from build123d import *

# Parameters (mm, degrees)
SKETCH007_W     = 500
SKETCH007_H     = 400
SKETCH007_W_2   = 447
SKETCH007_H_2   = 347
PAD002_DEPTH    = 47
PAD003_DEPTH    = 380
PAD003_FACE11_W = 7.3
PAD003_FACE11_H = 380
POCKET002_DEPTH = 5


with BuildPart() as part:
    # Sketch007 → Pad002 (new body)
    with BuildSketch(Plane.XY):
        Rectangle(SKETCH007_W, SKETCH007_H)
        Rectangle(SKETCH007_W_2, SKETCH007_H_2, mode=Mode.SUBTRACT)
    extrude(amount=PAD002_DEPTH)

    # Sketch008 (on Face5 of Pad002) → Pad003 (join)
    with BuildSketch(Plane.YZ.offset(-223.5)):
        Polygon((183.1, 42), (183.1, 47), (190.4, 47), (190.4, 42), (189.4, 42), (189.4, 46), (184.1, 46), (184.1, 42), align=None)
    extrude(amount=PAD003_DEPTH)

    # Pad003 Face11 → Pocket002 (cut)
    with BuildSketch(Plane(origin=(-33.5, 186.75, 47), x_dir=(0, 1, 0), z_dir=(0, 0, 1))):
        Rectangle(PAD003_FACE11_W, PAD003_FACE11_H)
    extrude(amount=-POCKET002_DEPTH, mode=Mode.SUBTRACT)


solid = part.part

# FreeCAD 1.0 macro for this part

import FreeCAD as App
import Part
import Sketcher
Q = App.Units.Quantity


def add_polygon(sketch, points):
    """Adds a closed chain of lines whose ends are joined by coincident constraints."""
    first, n = sketch.GeometryCount, len(points)
    for a, b in zip(points, points[1:] + points[:1]):
        sketch.addGeometry(Part.LineSegment(App.Vector(*a, 0), App.Vector(*b, 0)), False)
    for i in range(n):
        sketch.addConstraint(Sketcher.Constraint("Coincident", first + i, 2, first + (i + 1) % n, 1))

doc = App.newDocument("Part")
body = doc.addObject("PartDesign::Body", "Body")

sketch1 = body.newObject("Sketcher::SketchObject", "Sketch")
sketch1.AttachmentSupport = (doc.getObject("XY_Plane"), [""])
sketch1.MapMode = "FlatFace"
add_polygon(sketch1, [(-250, 200), (-250, -200), (250, -200), (250, 200)])
add_polygon(sketch1, [(224, -174), (-224, -174), (-224, 174), (224, 174)])
sketch1.addConstraint([
    Sketcher.Constraint("Vertical", 0),
    Sketcher.Constraint("Horizontal", 1),
    Sketcher.Constraint("Vertical", 2),
    Sketcher.Constraint("Horizontal", 3),
    Sketcher.Constraint("Horizontal", 4),
    Sketcher.Constraint("Vertical", 5),
    Sketcher.Constraint("Horizontal", 6),
    Sketcher.Constraint("Vertical", 7),
    Sketcher.Constraint("Symmetric", 0, 2, 2, 2, -1, 1),
    Sketcher.Constraint("Symmetric", 4, 2, 6, 2, -1, 1),
    Sketcher.Constraint("DistanceX", 1, 1, 1, 2, Q("500 mm")),
    Sketcher.Constraint("DistanceX", 4, 2, 4, 1, Q("447 mm")),
    Sketcher.Constraint("DistanceY", 0, 2, 0, 1, Q("400 mm")),
    Sketcher.Constraint("DistanceY", 5, 1, 5, 2, Q("347 mm")),
])
pad1 = body.newObject("PartDesign::Pad", "Pad")
pad1.Profile = sketch1
pad1.Length = 47

sketch2 = body.newObject("Sketcher::SketchObject", "Sketch001")
sketch2.AttachmentSupport = (doc.getObject("YZ_Plane"), [""])
sketch2.MapMode = "FlatFace"
sketch2.AttachmentOffset = App.Placement(App.Vector(0, 0, -223.5), App.Rotation())
add_polygon(sketch2, [(183.1, 47), (183.1, 42), (184.1, 42), (184.1, 46), (189.4, 46), (189.4, 42), (190.4, 42), (190.4, 47)])
sketch2.addConstraint([
    Sketcher.Constraint("Vertical", 0),
    Sketcher.Constraint("Horizontal", 1),
    Sketcher.Constraint("Vertical", 2),
    Sketcher.Constraint("Horizontal", 3),
    Sketcher.Constraint("Vertical", 4),
    Sketcher.Constraint("Horizontal", 5),
    Sketcher.Constraint("Vertical", 6),
    Sketcher.Constraint("Horizontal", 7),
    Sketcher.Constraint("Horizontal", 1, 2, 4, 2),
    Sketcher.Constraint("Equal", 1, 5),
    Sketcher.Constraint("DistanceX", 1, 1, 1, 2, Q("1 mm")),
    Sketcher.Constraint("DistanceY", 0, 2, 0, 1, Q("5 mm")),
    Sketcher.Constraint("DistanceY", 2, 1, 2, 2, Q("4 mm")),
    Sketcher.Constraint("DistanceX", 3, 1, 3, 2, Q("5.3 mm")),
    Sketcher.Constraint("DistanceY", -1, 1, 0, 2, Q("42 mm")),
    Sketcher.Constraint("DistanceX", -1, 1, 0, 2, Q("183.1 mm")),
])
pad2 = body.newObject("PartDesign::Pad", "Pad001")
pad2.Profile = sketch2
pad2.Length = 380

sketch3 = body.newObject("Sketcher::SketchObject", "Sketch002")
sketch3.AttachmentSupport = (doc.getObject("XY_Plane"), [""])
sketch3.MapMode = "FlatFace"
sketch3.AttachmentOffset = App.Placement(App.Vector(0, 0, 47), App.Rotation())
add_polygon(sketch3, [(-224, 183), (156, 183), (156, 190), (-224, 190)])
sketch3.addConstraint([
    Sketcher.Constraint("Horizontal", 0),
    Sketcher.Constraint("Vertical", 1),
    Sketcher.Constraint("Horizontal", 2),
    Sketcher.Constraint("Vertical", 3),
    Sketcher.Constraint("DistanceX", 0, 1, 0, 2, Q("380 mm")),
    Sketcher.Constraint("DistanceY", 1, 1, 1, 2, Q("7.3 mm")),
    Sketcher.Constraint("DistanceX", -1, 1, 0, 2, Q("156.5 mm")),
    Sketcher.Constraint("DistanceY", -1, 1, 0, 2, Q("183.1 mm")),
])
pocket1 = body.newObject("PartDesign::Pocket", "Pocket")
pocket1.Profile = sketch3
pocket1.Length = 5

doc.recompute()
